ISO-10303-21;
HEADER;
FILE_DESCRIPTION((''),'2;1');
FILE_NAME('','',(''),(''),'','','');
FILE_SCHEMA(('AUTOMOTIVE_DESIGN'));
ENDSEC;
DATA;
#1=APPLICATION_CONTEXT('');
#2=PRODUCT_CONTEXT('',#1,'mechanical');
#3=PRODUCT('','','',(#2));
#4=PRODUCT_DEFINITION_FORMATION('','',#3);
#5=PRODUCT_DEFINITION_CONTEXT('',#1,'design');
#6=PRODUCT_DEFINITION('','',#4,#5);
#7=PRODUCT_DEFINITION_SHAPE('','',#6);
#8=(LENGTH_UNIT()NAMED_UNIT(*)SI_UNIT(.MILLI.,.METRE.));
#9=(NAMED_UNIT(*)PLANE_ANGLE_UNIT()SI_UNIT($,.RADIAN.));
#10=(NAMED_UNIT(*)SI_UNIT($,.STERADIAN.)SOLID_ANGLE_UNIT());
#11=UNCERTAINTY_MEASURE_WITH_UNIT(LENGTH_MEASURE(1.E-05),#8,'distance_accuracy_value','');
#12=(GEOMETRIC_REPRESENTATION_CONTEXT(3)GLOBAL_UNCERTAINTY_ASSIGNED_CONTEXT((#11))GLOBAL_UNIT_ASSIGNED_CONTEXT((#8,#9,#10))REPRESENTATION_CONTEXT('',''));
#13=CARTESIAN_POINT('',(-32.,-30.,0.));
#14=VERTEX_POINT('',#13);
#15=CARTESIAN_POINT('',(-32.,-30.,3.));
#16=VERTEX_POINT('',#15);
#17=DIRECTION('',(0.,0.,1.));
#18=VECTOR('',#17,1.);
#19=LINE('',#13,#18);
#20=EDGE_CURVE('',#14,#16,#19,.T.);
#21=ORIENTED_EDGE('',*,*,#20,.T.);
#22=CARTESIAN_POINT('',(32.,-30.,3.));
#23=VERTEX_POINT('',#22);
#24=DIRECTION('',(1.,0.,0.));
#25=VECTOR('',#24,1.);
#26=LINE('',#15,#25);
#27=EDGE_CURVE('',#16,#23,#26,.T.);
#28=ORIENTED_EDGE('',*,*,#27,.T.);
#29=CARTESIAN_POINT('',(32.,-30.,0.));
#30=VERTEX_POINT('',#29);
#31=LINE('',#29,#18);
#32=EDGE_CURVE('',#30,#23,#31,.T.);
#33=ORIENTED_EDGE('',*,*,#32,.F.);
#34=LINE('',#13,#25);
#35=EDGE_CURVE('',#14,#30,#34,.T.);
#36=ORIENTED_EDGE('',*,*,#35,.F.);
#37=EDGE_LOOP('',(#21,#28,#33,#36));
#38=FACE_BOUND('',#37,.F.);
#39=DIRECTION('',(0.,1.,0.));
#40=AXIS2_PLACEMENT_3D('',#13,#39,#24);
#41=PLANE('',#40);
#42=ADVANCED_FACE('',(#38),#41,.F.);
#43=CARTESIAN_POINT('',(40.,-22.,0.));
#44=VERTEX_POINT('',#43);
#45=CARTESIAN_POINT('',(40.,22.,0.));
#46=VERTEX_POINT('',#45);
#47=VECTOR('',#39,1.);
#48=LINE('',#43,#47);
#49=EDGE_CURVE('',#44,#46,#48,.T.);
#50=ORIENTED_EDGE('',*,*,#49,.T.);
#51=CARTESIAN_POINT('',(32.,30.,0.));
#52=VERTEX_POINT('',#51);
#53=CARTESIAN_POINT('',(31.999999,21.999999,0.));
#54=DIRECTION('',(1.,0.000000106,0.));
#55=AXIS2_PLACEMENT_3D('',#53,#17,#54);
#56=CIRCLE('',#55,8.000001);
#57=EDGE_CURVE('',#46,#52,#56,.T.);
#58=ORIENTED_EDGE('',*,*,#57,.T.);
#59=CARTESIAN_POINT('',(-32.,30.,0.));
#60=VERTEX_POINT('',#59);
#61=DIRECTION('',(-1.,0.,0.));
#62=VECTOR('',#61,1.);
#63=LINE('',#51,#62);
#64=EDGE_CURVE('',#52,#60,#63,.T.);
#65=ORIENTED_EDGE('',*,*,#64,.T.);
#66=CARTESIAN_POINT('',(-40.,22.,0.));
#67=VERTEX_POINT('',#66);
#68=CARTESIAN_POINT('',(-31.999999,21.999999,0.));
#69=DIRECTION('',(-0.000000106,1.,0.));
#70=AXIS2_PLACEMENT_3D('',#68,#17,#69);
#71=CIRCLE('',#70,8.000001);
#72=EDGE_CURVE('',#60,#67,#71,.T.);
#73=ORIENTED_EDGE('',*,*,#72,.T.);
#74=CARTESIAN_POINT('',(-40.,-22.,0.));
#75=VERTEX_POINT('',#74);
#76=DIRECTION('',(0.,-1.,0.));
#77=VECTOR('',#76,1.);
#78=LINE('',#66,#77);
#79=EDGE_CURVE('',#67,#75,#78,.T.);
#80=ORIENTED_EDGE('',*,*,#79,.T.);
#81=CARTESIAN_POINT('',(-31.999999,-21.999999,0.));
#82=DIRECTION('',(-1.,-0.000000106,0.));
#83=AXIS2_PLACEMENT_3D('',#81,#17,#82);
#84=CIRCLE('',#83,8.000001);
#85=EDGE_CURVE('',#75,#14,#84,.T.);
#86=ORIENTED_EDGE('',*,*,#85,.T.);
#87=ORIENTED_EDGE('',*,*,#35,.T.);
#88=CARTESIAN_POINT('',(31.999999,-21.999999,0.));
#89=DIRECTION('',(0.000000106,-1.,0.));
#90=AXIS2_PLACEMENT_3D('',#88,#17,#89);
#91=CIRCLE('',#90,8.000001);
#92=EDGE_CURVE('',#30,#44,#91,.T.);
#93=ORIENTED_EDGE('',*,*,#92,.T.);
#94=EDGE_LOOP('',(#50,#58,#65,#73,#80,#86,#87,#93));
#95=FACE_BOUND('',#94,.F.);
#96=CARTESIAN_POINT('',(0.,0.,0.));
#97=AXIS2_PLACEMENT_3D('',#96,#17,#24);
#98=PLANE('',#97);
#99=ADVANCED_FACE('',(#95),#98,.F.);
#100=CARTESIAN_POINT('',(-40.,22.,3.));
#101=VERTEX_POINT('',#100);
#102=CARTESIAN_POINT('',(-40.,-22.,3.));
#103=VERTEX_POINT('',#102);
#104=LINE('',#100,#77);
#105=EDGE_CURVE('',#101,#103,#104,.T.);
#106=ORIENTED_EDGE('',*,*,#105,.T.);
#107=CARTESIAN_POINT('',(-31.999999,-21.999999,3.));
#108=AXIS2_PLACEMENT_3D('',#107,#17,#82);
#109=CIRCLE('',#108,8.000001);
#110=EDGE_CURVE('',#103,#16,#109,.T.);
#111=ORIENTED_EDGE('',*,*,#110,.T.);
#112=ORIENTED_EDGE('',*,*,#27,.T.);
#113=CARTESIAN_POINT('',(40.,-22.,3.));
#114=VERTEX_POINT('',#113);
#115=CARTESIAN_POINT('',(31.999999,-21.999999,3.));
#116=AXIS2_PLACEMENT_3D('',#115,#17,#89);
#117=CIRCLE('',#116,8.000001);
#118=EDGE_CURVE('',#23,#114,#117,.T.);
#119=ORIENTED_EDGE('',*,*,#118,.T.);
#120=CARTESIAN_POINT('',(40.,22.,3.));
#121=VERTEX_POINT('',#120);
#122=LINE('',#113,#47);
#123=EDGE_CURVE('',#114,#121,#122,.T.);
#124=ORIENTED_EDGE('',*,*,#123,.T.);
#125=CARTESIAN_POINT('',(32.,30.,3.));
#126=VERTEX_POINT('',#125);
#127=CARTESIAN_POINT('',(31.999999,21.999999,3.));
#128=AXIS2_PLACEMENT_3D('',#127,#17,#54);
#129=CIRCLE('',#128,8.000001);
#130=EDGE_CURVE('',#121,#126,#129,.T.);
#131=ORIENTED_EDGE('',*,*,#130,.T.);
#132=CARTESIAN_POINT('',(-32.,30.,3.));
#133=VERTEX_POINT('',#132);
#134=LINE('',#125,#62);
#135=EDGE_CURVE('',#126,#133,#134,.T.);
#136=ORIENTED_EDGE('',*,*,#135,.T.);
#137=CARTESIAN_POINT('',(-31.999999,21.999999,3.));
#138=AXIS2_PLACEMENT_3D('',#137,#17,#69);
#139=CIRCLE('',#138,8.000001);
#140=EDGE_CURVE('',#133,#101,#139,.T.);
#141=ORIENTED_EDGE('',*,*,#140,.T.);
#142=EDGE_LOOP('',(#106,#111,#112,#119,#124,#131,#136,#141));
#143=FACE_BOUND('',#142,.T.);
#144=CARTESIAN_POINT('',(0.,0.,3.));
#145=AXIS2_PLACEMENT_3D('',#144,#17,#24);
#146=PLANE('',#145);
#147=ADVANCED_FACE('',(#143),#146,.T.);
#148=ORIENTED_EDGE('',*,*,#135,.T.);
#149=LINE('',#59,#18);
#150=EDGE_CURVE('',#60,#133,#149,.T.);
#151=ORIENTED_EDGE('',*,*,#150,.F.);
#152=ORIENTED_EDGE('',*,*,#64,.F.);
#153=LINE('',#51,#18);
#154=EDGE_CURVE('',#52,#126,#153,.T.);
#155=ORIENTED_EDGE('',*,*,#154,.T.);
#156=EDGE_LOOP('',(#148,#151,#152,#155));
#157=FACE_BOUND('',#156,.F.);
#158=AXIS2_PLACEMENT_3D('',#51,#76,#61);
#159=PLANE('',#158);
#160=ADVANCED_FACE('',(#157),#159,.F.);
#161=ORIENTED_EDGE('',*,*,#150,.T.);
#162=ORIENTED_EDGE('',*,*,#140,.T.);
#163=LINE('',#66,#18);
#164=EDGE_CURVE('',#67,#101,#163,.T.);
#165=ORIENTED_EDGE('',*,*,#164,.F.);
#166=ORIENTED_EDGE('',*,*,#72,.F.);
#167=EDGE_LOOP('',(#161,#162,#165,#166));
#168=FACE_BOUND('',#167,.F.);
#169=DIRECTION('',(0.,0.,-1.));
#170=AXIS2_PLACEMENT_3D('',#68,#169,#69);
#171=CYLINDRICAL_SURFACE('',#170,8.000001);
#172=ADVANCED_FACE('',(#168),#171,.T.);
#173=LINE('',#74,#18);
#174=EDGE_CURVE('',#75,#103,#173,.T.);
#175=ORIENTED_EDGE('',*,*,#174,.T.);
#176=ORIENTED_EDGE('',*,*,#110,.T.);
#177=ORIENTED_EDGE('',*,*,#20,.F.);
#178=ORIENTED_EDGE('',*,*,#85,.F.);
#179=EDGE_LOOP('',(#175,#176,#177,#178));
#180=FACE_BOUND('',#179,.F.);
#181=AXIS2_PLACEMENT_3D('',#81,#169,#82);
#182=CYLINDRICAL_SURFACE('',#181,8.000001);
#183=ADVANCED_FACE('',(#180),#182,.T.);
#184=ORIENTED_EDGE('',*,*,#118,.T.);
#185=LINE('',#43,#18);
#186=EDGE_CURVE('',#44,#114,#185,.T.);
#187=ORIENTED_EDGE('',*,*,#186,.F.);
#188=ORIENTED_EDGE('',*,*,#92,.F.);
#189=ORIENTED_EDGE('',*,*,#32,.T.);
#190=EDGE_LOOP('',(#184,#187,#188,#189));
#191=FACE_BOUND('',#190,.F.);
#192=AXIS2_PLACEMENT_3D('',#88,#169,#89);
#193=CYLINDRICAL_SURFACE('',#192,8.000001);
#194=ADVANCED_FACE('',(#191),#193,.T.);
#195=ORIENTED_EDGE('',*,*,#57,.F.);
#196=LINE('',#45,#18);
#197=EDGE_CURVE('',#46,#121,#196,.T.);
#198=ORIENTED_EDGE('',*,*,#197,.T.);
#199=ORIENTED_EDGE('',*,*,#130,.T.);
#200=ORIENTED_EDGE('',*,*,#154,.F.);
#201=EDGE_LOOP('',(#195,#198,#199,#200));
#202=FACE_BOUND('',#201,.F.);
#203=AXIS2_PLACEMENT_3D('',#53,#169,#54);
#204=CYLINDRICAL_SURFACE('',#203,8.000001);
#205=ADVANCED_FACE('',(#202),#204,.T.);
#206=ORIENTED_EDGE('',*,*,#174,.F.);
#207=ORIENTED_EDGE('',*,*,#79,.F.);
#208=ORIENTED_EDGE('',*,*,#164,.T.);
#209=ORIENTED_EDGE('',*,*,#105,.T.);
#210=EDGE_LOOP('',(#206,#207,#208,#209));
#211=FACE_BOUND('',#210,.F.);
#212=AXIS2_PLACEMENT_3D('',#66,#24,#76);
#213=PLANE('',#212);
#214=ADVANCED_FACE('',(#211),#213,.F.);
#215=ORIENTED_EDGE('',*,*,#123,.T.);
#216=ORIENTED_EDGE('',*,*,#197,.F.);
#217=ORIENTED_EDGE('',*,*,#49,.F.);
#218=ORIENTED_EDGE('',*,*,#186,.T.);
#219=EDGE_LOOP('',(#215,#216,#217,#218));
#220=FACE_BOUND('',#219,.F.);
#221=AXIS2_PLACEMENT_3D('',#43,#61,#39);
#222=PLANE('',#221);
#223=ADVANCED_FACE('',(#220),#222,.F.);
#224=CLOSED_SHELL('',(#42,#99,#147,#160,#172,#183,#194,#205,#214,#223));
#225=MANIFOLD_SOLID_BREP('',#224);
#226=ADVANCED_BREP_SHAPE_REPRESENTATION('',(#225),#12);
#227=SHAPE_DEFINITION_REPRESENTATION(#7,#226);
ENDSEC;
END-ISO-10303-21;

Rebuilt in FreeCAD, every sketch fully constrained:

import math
import FreeCAD as App
import Part
import Sketcher
Q = App.Units.Quantity

doc = App.newDocument("Part")
body = doc.addObject("PartDesign::Body", "Body")

# Sketch on XY plane
sketch1 = body.newObject("Sketcher::SketchObject", "Sketch")
sketch1.AttachmentSupport = (doc.getObject("XY_Plane"), [""])
sketch1.MapMode = "FlatFace"
sketch1.addGeometry([
    Part.LineSegment(App.Vector(32, 30, 0), App.Vector(-32, 30, 0)),  # 0
    Part.ArcOfCircle(Part.Circle(App.Vector(-32, 22, 0), App.Vector(0, 0, 1), 8), math.radians(90), math.radians(180)),  # 1
    Part.LineSegment(App.Vector(-40, 22, 0), App.Vector(-40, -22, 0)),  # 2
    Part.ArcOfCircle(Part.Circle(App.Vector(-32, -22, 0), App.Vector(0, 0, 1), 8), math.radians(-180), math.radians(-90)),  # 3
    Part.LineSegment(App.Vector(-32, -30, 0), App.Vector(32, -30, 0)),  # 4
    Part.ArcOfCircle(Part.Circle(App.Vector(32, -22, 0), App.Vector(0, 0, 1), 8), math.radians(-90), math.radians(0)),  # 5
    Part.LineSegment(App.Vector(40, -22, 0), App.Vector(40, 22, 0)),  # 6
    Part.ArcOfCircle(Part.Circle(App.Vector(32, 22, 0), App.Vector(0, 0, 1), 8), math.radians(0), math.radians(90)),  # 7
], False)
sketch1.addConstraint([
    Sketcher.Constraint("Tangent", 0, 2, 1, 1),
    Sketcher.Constraint("Tangent", 1, 2, 2, 1),
    Sketcher.Constraint("Tangent", 2, 2, 3, 1),
    Sketcher.Constraint("Tangent", 3, 2, 4, 1),
    Sketcher.Constraint("Tangent", 4, 2, 5, 1),
    Sketcher.Constraint("Tangent", 5, 2, 6, 1),
    Sketcher.Constraint("Tangent", 6, 2, 7, 1),
    Sketcher.Constraint("Tangent", 7, 2, 0, 1),
    Sketcher.Constraint("Horizontal", 0),
    Sketcher.Constraint("Vertical", 2),
    Sketcher.Constraint("Horizontal", 4),
    Sketcher.Constraint("Vertical", 6),
    Sketcher.Constraint("Equal", 1, 3),
    Sketcher.Constraint("Equal", 3, 5),
    Sketcher.Constraint("Equal", 5, 7),
    Sketcher.Constraint("Symmetric", 1, 3, 5, 3, -1, 1),
    Sketcher.Constraint("Radius", 1, Q("8.000001 mm")),
    Sketcher.Constraint("DistanceX", 0, 2, 0, 1, Q("64 mm")),
    Sketcher.Constraint("DistanceY", 2, 2, 2, 1, Q("44 mm")),
])
pad1 = body.newObject("PartDesign::Pad", "Pad")
pad1.Profile = sketch1
pad1.Length = 3

doc.recompute()
